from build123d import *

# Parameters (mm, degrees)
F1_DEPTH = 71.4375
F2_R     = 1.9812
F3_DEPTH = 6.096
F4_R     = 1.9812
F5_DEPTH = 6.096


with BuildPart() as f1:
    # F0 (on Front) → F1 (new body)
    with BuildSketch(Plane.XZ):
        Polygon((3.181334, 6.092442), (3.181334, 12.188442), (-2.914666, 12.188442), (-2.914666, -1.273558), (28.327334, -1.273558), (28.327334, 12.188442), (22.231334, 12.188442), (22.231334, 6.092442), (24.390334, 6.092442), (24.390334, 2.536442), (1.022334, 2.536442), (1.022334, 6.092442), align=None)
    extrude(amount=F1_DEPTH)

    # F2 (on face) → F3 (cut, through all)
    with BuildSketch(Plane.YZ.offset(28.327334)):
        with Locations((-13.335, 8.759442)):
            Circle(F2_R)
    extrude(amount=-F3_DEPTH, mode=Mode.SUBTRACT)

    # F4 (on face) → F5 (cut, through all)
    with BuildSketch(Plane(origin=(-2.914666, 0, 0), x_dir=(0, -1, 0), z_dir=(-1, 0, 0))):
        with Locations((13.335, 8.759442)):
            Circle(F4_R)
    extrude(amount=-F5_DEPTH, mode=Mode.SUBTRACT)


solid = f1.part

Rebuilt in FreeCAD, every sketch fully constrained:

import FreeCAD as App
import Part
import Sketcher
from FreeCAD import Vector
Q = App.Units.Quantity

doc = App.newDocument("Part")
params = doc.addObject("Spreadsheet::Sheet", "Params")
for row, (alias, value) in enumerate([
    ("sketch1_width", "0.24 in"),
    ("sketch1_width2", "1.23 in"),
    ("sketch1_width3", "0.92 in"),
    ("sketch1_height", "0.53 in"),
    ("sketch1_height2", "0.14 in"),
    ("pad1_length", "2.8125 in"),
    ("sketch2_diameter", "0.156 in"),
    ("pocket1_length", "0.24 in"),
    ("sketch3_diameter", "0.156 in"),
], start=1):
    params.set(f"A{row}", alias)
    params.set(f"B{row}", "=" + value)
    params.setAlias(f"B{row}", alias)

body = doc.addObject("PartDesign::Body", "Body")

# Sketch on XZ plane
sketch1 = doc.addObject("Sketcher::SketchObject", "Sketch")
body.addObject(sketch1)
sketch1.AttachmentSupport = (doc.XZ_Plane, [""])
sketch1.MapMode = "FlatFace"
sketch1.addGeometry([
    Part.LineSegment(Vector(3.181334, 6.092442, 0), Vector(3.181334, 12.188442, 0)),  # 0
    Part.LineSegment(Vector(3.181334, 12.188442, 0), Vector(-2.914666, 12.188442, 0)),  # 1
    Part.LineSegment(Vector(-2.914666, 12.188442, 0), Vector(-2.914666, -1.273558, 0)),  # 2
    Part.LineSegment(Vector(-2.914666, -1.273558, 0), Vector(28.327334, -1.273558, 0)),  # 3
    Part.LineSegment(Vector(28.327334, -1.273558, 0), Vector(28.327334, 12.188442, 0)),  # 4
    Part.LineSegment(Vector(28.327334, 12.188442, 0), Vector(22.231334, 12.188442, 0)),  # 5
    Part.LineSegment(Vector(22.231334, 12.188442, 0), Vector(22.231334, 6.092442, 0)),  # 6
    Part.LineSegment(Vector(22.231334, 6.092442, 0), Vector(24.390334, 6.092442, 0)),  # 7
    Part.LineSegment(Vector(24.390334, 6.092442, 0), Vector(24.390334, 2.536442, 0)),  # 8
    Part.LineSegment(Vector(24.390334, 2.536442, 0), Vector(1.022334, 2.536442, 0)),  # 9
    Part.LineSegment(Vector(1.022334, 2.536442, 0), Vector(1.022334, 6.092442, 0)),  # 10
    Part.LineSegment(Vector(1.022334, 6.092442, 0), Vector(3.181334, 6.092442, 0)),  # 11
], False)
sketch1.addConstraint([
    Sketcher.Constraint("Coincident", 0, 2, 1, 1),
    Sketcher.Constraint("Coincident", 1, 2, 2, 1),
    Sketcher.Constraint("Coincident", 2, 2, 3, 1),
    Sketcher.Constraint("Coincident", 3, 2, 4, 1),
    Sketcher.Constraint("Coincident", 4, 2, 5, 1),
    Sketcher.Constraint("Coincident", 5, 2, 6, 1),
    Sketcher.Constraint("Coincident", 6, 2, 7, 1),
    Sketcher.Constraint("Coincident", 7, 2, 8, 1),
    Sketcher.Constraint("Coincident", 8, 2, 9, 1),
    Sketcher.Constraint("Coincident", 9, 2, 10, 1),
    Sketcher.Constraint("Coincident", 10, 2, 11, 1),
    Sketcher.Constraint("Coincident", 11, 2, 0, 1),
    Sketcher.Constraint("Vertical", 0),
    Sketcher.Constraint("Horizontal", 1),
    Sketcher.Constraint("Vertical", 2),
    Sketcher.Constraint("Horizontal", 3),
    Sketcher.Constraint("Vertical", 4),
    Sketcher.Constraint("Horizontal", 5),
    Sketcher.Constraint("Vertical", 6),
    Sketcher.Constraint("Horizontal", 7),
    Sketcher.Constraint("Vertical", 8),
    Sketcher.Constraint("Horizontal", 9),
    Sketcher.Constraint("Vertical", 10),
    Sketcher.Constraint("Horizontal", 11),
    Sketcher.Constraint("Horizontal", 1, 2, 4, 2),
    Sketcher.Constraint("Horizontal", 7, 2, 10, 2),
    Sketcher.Constraint("Equal", 1, 5),
    Sketcher.Constraint("Equal", 7, 11),
    Sketcher.Constraint("Equal", 5, 0),
    Sketcher.Constraint("DistanceX", 1, 2, 1, 1, Q("0.24 in")),
    Sketcher.Constraint("DistanceX", 3, 1, 3, 2, Q("1.23 in")),
    Sketcher.Constraint("DistanceX", 9, 2, 9, 1, Q("0.92 in")),
    Sketcher.Constraint("DistanceY", 2, 2, 2, 1, Q("0.53 in")),
    Sketcher.Constraint("DistanceY", 8, 2, 8, 1, Q("0.14 in")),
    Sketcher.Constraint("DistanceX", -1, 1, 0, 2, 3.181334),
    Sketcher.Constraint("DistanceY", -1, 1, 0, 2, 12.188442),
])
sketch1.setExpression("Constraints[29]", "Params.sketch1_width")
sketch1.setExpression("Constraints[30]", "Params.sketch1_width2")
sketch1.setExpression("Constraints[31]", "Params.sketch1_width3")
sketch1.setExpression("Constraints[32]", "Params.sketch1_height")
sketch1.setExpression("Constraints[33]", "Params.sketch1_height2")
pad1 = doc.addObject("PartDesign::Pad", "Pad")
body.addObject(pad1)
pad1.Profile = sketch1
pad1.setExpression("Length", "Params.pad1_length")

# Sketch on YZ plane
sketch2 = doc.addObject("Sketcher::SketchObject", "Sketch001")
body.addObject(sketch2)
sketch2.AttachmentSupport = (doc.YZ_Plane, [""])
sketch2.MapMode = "FlatFace"
sketch2.AttachmentOffset = App.Placement(Vector(0, 0, 28.327334), App.Rotation())
sketch2.addGeometry(Part.Circle(Vector(-13.335, 8.759442, 0), Vector(0, 0, 1), 1.9812), False)
sketch2.addConstraint([
    Sketcher.Constraint("Diameter", 0, Q("0.156 in")),
    Sketcher.Constraint("DistanceX", 0, 3, -1, 1, Q("0.525 in")),
    Sketcher.Constraint("DistanceY", -1, 1, 0, 3, 8.759442),
])
sketch2.setExpression("Constraints[0]", "Params.sketch2_diameter")
pocket1 = doc.addObject("PartDesign::Pocket", "Pocket")
body.addObject(pocket1)
pocket1.Profile = sketch2
pocket1.setExpression("Length", "Params.pocket1_length")

# Sketch on YZ plane
sketch3 = doc.addObject("Sketcher::SketchObject", "Sketch002")
body.addObject(sketch3)
sketch3.AttachmentSupport = (doc.YZ_Plane, [""])
sketch3.MapMode = "FlatFace"
sketch3.AttachmentOffset = App.Placement(Vector(0, 0, -2.914666), App.Rotation())
sketch3.addGeometry(Part.Circle(Vector(-13.335, 8.759442, 0), Vector(0, 0, 1), 1.9812), False)
sketch3.addConstraint([
    Sketcher.Constraint("Diameter", 0, Q("0.156 in")),
    Sketcher.Constraint("DistanceX", 0, 3, -1, 1, Q("0.525 in")),
    Sketcher.Constraint("DistanceY", -1, 1, 0, 3, 8.759442),
])
sketch3.setExpression("Constraints[0]", "Params.sketch3_diameter")
pocket2 = doc.addObject("PartDesign::Pocket", "Pocket001")
body.addObject(pocket2)
pocket2.Profile = sketch3
pocket2.Type = "ThroughAll"
pocket2.Reversed = True

doc.recompute()
